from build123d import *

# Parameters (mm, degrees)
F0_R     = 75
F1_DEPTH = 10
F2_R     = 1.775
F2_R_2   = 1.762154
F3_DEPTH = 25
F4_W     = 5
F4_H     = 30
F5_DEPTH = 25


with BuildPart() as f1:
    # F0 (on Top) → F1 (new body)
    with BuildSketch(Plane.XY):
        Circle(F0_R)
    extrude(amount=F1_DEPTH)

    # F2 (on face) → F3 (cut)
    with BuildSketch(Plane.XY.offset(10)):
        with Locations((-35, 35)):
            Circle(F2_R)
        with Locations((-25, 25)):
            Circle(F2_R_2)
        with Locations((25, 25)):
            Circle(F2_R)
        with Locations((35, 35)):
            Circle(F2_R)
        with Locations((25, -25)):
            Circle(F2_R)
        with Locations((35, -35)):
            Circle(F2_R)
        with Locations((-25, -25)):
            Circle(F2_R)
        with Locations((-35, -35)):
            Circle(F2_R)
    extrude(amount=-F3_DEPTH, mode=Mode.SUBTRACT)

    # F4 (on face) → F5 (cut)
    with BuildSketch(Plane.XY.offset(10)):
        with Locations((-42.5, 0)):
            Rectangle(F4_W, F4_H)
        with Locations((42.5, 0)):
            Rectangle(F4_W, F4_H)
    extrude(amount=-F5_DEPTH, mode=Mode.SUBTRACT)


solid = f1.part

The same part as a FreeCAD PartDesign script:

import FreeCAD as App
import Part
import Sketcher

V = App.Vector


def add_polygon(sketch, points):
    """Adds a closed chain of lines whose ends are joined by coincident constraints."""
    first, n = sketch.GeometryCount, len(points)
    for a, b in zip(points, points[1:] + points[:1]):
        sketch.addGeometry(Part.LineSegment(App.Vector(*a, 0), App.Vector(*b, 0)), False)
    for i in range(n):
        sketch.addConstraint(Sketcher.Constraint("Coincident", first + i, 2, first + (i + 1) % n, 1))

doc = App.newDocument("Part")
body = doc.addObject("PartDesign::Body", "Body")

sketch1 = doc.addObject("Sketcher::SketchObject", "Sketch")
body.addObject(sketch1)
sketch1.AttachmentSupport = (doc.XY_Plane, [""])
sketch1.MapMode = "FlatFace"
sketch1.addGeometry(Part.Circle(V(0, 0, 0), V(0, 0, 1), 75), False)
sketch1.addConstraint([
    Sketcher.Constraint("Coincident", 0, 3, -1, 1),
    Sketcher.Constraint("Diameter", 0, 150.0),
])
pad1 = doc.addObject("PartDesign::Pad", "Pad")
body.addObject(pad1)
pad1.Profile = sketch1
pad1.Length = 10

sketch2 = doc.addObject("Sketcher::SketchObject", "Sketch001")
body.addObject(sketch2)
sketch2.AttachmentSupport = (doc.XY_Plane, [""])
sketch2.MapMode = "FlatFace"
sketch2.AttachmentOffset = App.Placement(V(0, 0, 10), App.Rotation())
sketch2.addGeometry([
    Part.Circle(V(-35, 35, 0), V(0, 0, 1), 1.775),
    Part.Circle(V(-25, 25, 0), V(0, 0, 1), 1.762154),
    Part.Circle(V(25, 25, 0), V(0, 0, 1), 1.775),
    Part.Circle(V(35, 35, 0), V(0, 0, 1), 1.775),
    Part.Circle(V(25, -25, 0), V(0, 0, 1), 1.775),
    Part.Circle(V(35, -35, 0), V(0, 0, 1), 1.775),
    Part.Circle(V(-25, -25, 0), V(0, 0, 1), 1.775),
    Part.Circle(V(-35, -35, 0), V(0, 0, 1), 1.775),
], False)
sketch2.addConstraint([
    Sketcher.Constraint("Equal", 0, 2),
    Sketcher.Constraint("Equal", 2, 3),
    Sketcher.Constraint("Equal", 3, 4),
    Sketcher.Constraint("Equal", 4, 5),
    Sketcher.Constraint("Equal", 5, 6),
    Sketcher.Constraint("Equal", 6, 7),
    Sketcher.Constraint("Symmetric", 1, 3, 4, 3, -1, 1),
    Sketcher.Constraint("Symmetric", 0, 3, 5, 3, -1, 1),
    Sketcher.Constraint("Symmetric", 2, 3, 6, 3, -1, 1),
    Sketcher.Constraint("Symmetric", 3, 3, 7, 3, -1, 1),
    Sketcher.Constraint("Symmetric", 1, 3, 2, 3, -2),
    Sketcher.Constraint("Symmetric", 0, 3, 3, 3, -2),
    Sketcher.Constraint("Diameter", 0, 3.55),
    Sketcher.Constraint("DistanceX", 0, 3, -1, 1, 35.0),
    Sketcher.Constraint("DistanceY", -1, 1, 0, 3, 35.0),
    Sketcher.Constraint("DistanceX", 1, 3, -1, 1, 25.0),
    Sketcher.Constraint("DistanceY", -1, 1, 1, 3, 25.0),
    Sketcher.Constraint("Diameter", 1, 3.524308),
])
pocket1 = doc.addObject("PartDesign::Pocket", "Pocket")
body.addObject(pocket1)
pocket1.Profile = sketch2
pocket1.Length = 25

sketch3 = doc.addObject("Sketcher::SketchObject", "Sketch002")
body.addObject(sketch3)
sketch3.AttachmentSupport = (doc.XY_Plane, [""])
sketch3.MapMode = "FlatFace"
sketch3.AttachmentOffset = App.Placement(V(0, 0, 10), App.Rotation())
add_polygon(sketch3, [(-45, 15), (-45, -15), (-40, -15), (-40, 15)])
add_polygon(sketch3, [(40, 15), (40, -15), (45, -15), (45, 15)])
sketch3.addConstraint([
    Sketcher.Constraint("Vertical", 0),
    Sketcher.Constraint("Horizontal", 1),
    Sketcher.Constraint("Vertical", 2),
    Sketcher.Constraint("Horizontal", 3),
    Sketcher.Constraint("Vertical", 4),
    Sketcher.Constraint("Horizontal", 5),
    Sketcher.Constraint("Vertical", 6),
    Sketcher.Constraint("Horizontal", 7),
    Sketcher.Constraint("Symmetric", 2, 2, 4, 2, -1, 1),
    Sketcher.Constraint("Symmetric", 0, 2, 6, 2, -1, 1),
    Sketcher.Constraint("Horizontal", 1, 2, 4, 2),
    Sketcher.Constraint("DistanceX", 1, 1, 1, 2, 5.0),
    Sketcher.Constraint("DistanceY", 0, 2, 0, 1, 30.0),
    Sketcher.Constraint("DistanceX", 0, 2, -1, 1, 45.0),
])
pocket2 = doc.addObject("PartDesign::Pocket", "Pocket001")
body.addObject(pocket2)
pocket2.Profile = sketch3
pocket2.Length = 25

doc.recompute()
